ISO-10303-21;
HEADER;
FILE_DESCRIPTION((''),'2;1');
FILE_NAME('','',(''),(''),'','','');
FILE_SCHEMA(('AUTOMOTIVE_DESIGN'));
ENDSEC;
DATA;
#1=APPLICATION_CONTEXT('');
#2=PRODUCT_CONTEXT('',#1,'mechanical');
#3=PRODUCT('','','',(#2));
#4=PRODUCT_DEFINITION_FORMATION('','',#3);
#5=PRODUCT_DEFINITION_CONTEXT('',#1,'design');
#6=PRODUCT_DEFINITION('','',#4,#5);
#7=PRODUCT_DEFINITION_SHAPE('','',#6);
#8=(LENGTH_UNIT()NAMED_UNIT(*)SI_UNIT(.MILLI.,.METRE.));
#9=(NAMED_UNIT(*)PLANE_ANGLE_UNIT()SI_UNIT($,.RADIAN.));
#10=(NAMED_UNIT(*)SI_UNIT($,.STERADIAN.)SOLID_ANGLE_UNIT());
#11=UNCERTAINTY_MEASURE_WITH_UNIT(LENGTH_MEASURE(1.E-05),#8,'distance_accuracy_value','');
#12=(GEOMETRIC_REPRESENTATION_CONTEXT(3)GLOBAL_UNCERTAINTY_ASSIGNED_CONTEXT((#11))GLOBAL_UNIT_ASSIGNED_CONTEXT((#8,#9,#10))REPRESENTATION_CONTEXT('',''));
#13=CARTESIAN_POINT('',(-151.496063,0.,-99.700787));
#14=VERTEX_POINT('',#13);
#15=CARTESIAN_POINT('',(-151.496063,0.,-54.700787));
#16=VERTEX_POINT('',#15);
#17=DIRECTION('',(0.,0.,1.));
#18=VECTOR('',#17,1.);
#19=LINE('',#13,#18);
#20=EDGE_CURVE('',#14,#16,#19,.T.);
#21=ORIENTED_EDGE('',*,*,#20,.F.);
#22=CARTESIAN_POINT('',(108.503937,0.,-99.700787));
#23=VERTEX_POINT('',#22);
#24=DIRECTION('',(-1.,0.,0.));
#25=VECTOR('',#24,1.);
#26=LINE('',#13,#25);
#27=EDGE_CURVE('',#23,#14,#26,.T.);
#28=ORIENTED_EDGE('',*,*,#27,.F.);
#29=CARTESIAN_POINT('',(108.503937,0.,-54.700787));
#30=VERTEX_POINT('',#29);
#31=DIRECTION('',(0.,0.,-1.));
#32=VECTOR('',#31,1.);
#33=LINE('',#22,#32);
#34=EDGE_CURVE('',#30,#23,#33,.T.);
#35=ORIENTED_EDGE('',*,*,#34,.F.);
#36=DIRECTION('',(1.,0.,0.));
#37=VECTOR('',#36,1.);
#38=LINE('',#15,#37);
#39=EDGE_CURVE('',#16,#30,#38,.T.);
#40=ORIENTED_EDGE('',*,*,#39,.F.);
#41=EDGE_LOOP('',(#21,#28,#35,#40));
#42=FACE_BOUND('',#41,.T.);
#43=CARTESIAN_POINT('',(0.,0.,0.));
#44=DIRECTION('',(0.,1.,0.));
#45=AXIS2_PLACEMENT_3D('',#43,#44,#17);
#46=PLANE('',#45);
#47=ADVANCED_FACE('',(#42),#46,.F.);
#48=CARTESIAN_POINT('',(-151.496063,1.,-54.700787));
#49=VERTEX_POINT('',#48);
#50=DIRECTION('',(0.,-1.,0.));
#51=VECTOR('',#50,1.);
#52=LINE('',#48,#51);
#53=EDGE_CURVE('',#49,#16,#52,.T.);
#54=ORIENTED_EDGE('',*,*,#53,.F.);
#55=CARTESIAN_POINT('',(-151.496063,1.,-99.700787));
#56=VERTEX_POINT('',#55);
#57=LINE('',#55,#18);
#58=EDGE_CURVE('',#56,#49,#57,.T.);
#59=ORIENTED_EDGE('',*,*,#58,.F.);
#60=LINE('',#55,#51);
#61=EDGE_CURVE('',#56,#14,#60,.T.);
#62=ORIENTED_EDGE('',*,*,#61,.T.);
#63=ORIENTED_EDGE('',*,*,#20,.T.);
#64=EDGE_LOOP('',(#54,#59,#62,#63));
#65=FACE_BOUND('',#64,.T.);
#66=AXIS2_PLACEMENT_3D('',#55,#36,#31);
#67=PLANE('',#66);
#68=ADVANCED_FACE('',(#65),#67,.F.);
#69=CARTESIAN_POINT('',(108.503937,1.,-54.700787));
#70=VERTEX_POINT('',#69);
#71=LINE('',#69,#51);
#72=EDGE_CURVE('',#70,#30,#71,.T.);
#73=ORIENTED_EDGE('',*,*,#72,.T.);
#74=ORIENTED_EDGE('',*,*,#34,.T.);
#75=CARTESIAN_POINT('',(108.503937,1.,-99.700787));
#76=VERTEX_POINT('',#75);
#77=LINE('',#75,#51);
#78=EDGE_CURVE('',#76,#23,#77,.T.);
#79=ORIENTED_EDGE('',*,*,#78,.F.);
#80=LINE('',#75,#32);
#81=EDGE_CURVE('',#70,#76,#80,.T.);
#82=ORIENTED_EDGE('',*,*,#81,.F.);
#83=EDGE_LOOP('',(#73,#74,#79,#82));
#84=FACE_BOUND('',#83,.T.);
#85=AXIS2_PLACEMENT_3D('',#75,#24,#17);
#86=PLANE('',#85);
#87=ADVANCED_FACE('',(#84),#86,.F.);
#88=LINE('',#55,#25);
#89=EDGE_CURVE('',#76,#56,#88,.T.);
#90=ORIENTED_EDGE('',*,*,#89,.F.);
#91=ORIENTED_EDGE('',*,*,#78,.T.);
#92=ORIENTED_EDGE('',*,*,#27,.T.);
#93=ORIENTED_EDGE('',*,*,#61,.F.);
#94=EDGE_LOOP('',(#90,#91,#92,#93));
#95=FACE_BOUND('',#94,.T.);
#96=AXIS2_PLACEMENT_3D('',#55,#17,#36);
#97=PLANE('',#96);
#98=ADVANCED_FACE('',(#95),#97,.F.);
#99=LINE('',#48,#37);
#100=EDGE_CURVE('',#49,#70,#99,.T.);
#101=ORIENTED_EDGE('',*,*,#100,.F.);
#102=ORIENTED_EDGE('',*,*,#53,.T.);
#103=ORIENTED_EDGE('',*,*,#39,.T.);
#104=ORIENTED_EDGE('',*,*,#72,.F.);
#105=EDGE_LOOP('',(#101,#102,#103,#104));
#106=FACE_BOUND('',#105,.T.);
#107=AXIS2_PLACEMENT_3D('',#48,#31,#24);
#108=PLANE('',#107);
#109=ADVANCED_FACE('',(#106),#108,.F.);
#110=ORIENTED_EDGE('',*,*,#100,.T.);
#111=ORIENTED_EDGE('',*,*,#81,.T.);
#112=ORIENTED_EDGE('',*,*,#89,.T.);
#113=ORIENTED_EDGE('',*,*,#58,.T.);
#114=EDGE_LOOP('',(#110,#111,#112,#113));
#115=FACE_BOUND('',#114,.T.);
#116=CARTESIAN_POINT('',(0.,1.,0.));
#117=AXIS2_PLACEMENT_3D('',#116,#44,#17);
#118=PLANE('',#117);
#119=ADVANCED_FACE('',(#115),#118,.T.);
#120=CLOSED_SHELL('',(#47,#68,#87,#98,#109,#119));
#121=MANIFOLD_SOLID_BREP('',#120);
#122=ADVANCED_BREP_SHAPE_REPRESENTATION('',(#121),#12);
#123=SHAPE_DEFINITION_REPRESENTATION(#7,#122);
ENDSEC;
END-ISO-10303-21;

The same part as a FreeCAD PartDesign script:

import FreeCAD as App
import Part
import Sketcher

doc = App.newDocument("Part")
body = doc.addObject("PartDesign::Body", "Body")

# Sketch on XZ plane
sketch1 = body.newObject("Sketcher::SketchObject", "Sketch")
sketch1.AttachmentSupport = (doc.getObject("XZ_Plane"), [""])
sketch1.MapMode = "FlatFace"
sketch1.addGeometry(Part.LineSegment(App.Vector(-151, -100, 0), App.Vector(-151, -55, 0)), False)
sketch1.addGeometry(Part.LineSegment(App.Vector(-151, -55, 0), App.Vector(109, -55, 0)), False)
sketch1.addGeometry(Part.LineSegment(App.Vector(109, -55, 0), App.Vector(109, -100, 0)), False)
sketch1.addGeometry(Part.LineSegment(App.Vector(109, -100, 0), App.Vector(-151, -100, 0)), False)
sketch1.addConstraint(Sketcher.Constraint("Coincident", 0, 2, 1, 1))
sketch1.addConstraint(Sketcher.Constraint("Coincident", 1, 2, 2, 1))
sketch1.addConstraint(Sketcher.Constraint("Coincident", 2, 2, 3, 1))
sketch1.addConstraint(Sketcher.Constraint("Coincident", 3, 2, 0, 1))
sketch1.addConstraint(Sketcher.Constraint("Vertical", 0))
sketch1.addConstraint(Sketcher.Constraint("Horizontal", 1))
sketch1.addConstraint(Sketcher.Constraint("Vertical", 2))
sketch1.addConstraint(Sketcher.Constraint("Horizontal", 3))
sketch1.addConstraint(Sketcher.Constraint("DistanceX", 1, 1, 1, 2, 260.0))
sketch1.addConstraint(Sketcher.Constraint("DistanceY", 0, 1, 0, 2, 45.0))
sketch1.addConstraint(Sketcher.Constraint("DistanceX", 0, 2, -1, 1, 151.496063))
sketch1.addConstraint(Sketcher.Constraint("DistanceY", 0, 2, -1, 1, 54.700787))
pad1 = body.newObject("PartDesign::Pad", "Pad")
pad1.Profile = sketch1
pad1.Length = 1
pad1.Reversed = True

doc.recompute()
